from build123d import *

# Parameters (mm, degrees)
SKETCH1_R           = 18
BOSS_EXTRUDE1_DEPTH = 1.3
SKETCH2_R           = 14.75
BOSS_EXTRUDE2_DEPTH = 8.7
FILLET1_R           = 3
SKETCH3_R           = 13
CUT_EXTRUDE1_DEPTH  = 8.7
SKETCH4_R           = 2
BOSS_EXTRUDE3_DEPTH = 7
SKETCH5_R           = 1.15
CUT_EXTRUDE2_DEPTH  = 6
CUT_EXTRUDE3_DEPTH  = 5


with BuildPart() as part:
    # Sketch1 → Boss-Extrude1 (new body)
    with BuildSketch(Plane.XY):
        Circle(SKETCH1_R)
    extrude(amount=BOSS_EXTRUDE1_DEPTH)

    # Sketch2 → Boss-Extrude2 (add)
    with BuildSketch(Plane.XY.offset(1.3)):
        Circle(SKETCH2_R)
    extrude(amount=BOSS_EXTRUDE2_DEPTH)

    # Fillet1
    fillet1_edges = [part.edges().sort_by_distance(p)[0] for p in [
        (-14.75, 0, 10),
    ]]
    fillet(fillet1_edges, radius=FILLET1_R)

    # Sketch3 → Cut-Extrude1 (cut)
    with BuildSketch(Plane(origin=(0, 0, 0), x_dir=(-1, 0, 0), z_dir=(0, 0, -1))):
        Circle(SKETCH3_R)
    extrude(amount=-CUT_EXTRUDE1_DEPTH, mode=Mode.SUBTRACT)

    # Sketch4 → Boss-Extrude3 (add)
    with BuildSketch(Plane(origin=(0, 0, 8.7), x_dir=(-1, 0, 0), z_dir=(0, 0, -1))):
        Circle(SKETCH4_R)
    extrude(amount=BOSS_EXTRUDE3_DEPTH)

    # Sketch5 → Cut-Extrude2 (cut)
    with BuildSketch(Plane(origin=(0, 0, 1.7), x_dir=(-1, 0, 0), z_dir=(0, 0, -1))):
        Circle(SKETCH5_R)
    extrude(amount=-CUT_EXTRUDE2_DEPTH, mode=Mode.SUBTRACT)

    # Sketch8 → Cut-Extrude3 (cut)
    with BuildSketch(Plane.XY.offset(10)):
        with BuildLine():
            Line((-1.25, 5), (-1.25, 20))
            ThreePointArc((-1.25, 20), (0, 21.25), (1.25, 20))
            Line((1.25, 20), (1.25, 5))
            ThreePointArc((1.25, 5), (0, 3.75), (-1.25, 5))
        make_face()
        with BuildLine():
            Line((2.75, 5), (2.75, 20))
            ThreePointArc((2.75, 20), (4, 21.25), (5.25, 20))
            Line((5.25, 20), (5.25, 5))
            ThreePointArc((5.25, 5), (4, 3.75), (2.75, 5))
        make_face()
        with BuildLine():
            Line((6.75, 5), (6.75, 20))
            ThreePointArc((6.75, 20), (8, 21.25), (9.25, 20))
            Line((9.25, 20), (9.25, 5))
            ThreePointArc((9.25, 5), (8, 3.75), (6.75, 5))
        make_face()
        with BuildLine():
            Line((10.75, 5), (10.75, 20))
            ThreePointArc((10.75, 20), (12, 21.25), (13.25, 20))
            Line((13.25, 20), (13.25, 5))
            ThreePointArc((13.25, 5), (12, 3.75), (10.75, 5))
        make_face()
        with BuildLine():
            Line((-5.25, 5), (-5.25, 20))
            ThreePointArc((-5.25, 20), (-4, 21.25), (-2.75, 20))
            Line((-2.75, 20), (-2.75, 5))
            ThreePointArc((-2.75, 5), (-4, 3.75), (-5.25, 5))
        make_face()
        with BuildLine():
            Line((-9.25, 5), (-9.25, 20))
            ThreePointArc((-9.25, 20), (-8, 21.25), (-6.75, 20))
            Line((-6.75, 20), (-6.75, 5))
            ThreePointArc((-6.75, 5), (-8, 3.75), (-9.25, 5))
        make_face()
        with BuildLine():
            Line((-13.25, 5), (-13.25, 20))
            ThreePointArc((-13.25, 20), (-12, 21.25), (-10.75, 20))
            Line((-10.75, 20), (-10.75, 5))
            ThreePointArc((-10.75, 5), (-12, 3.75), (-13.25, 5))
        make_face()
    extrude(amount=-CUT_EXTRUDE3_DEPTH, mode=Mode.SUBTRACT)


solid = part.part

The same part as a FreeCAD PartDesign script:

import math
import FreeCAD as App
import Part
import Sketcher
from FreeCAD import Vector
Q = App.Units.Quantity


def edges_at(feature, points):
    """Names of the edges that pass closest to the given points."""
    edges = feature.Shape.Edges
    near = lambda p: min(range(len(edges)), key=lambda i: edges[i].distToShape(Part.Vertex(*p))[0])
    return sorted({f"Edge{near(p) + 1}" for p in points})

doc = App.newDocument("Part")
body = doc.addObject("PartDesign::Body", "Body")

sketch1 = body.newObject("Sketcher::SketchObject", "Sketch")
sketch1.AttachmentSupport = (doc.getObject("XY_Plane"), [""])
sketch1.MapMode = "FlatFace"
sketch1.addGeometry(Part.Circle(Vector(0, 0, 0), Vector(0, 0, 1), 18), False)
sketch1.addConstraint([
    Sketcher.Constraint("Coincident", 0, 3, -1, 1),
    Sketcher.Constraint("Diameter", 0, Q("36 mm")),
])
pad1 = body.newObject("PartDesign::Pad", "Pad")
pad1.Profile = sketch1
pad1.Length = 1.3

sketch2 = body.newObject("Sketcher::SketchObject", "Sketch001")
sketch2.AttachmentSupport = (doc.getObject("XY_Plane"), [""])
sketch2.MapMode = "FlatFace"
sketch2.AttachmentOffset = App.Placement(Vector(0, 0, 1.3), App.Rotation())
sketch2.addGeometry(Part.Circle(Vector(0, 0, 0), Vector(0, 0, 1), 14.75), False)
sketch2.addConstraint([
    Sketcher.Constraint("Coincident", 0, 3, -1, 1),
    Sketcher.Constraint("Diameter", 0, Q("29.5 mm")),
])
pad2 = body.newObject("PartDesign::Pad", "Pad001")
pad2.Profile = sketch2
pad2.Length = 8.7
doc.recompute()

fillet = body.newObject("PartDesign::Fillet", "Fillet")
fillet.Base = (pad2, edges_at(pad2, [(-14.75, 0, 10)]))
fillet.Radius = 3

sketch3 = body.newObject("Sketcher::SketchObject", "Sketch002")
sketch3.AttachmentSupport = (doc.getObject("XY_Plane"), [""])
sketch3.MapMode = "FlatFace"
sketch3.addGeometry(Part.Circle(Vector(0, 0, 0), Vector(0, 0, 1), 13), False)
sketch3.addConstraint([
    Sketcher.Constraint("Coincident", 0, 3, -1, 1),
    Sketcher.Constraint("Diameter", 0, Q("26 mm")),
])
pocket1 = body.newObject("PartDesign::Pocket", "Pocket")
pocket1.Profile = sketch3
pocket1.Length = 8.7
pocket1.Reversed = True

sketch4 = body.newObject("Sketcher::SketchObject", "Sketch003")
sketch4.AttachmentSupport = (doc.getObject("XY_Plane"), [""])
sketch4.MapMode = "FlatFace"
sketch4.AttachmentOffset = App.Placement(Vector(0, 0, 8.7), App.Rotation())
sketch4.addGeometry(Part.Circle(Vector(0, 0, 0), Vector(0, 0, 1), 2), False)
sketch4.addConstraint([
    Sketcher.Constraint("Coincident", 0, 3, -1, 1),
    Sketcher.Constraint("Diameter", 0, Q("4 mm")),
])
pad3 = body.newObject("PartDesign::Pad", "Pad002")
pad3.Profile = sketch4
pad3.Length = 7
pad3.Reversed = True

sketch5 = body.newObject("Sketcher::SketchObject", "Sketch004")
sketch5.AttachmentSupport = (doc.getObject("XY_Plane"), [""])
sketch5.MapMode = "FlatFace"
sketch5.AttachmentOffset = App.Placement(Vector(0, 0, 1.7), App.Rotation())
sketch5.addGeometry(Part.Circle(Vector(0, 0, 0), Vector(0, 0, 1), 1.15), False)
sketch5.addConstraint([
    Sketcher.Constraint("Coincident", 0, 3, -1, 1),
    Sketcher.Constraint("Diameter", 0, Q("2.3 mm")),
])
pocket2 = body.newObject("PartDesign::Pocket", "Pocket001")
pocket2.Profile = sketch5
pocket2.Length = 6
pocket2.Reversed = True

sketch6 = body.newObject("Sketcher::SketchObject", "Sketch005")
sketch6.AttachmentSupport = (doc.getObject("XY_Plane"), [""])
sketch6.MapMode = "FlatFace"
sketch6.AttachmentOffset = App.Placement(Vector(0, 0, 10), App.Rotation())
sketch6.addGeometry([
    Part.LineSegment(Vector(-1.25, 20, 0), Vector(-1.25, 5, 0)),
    Part.ArcOfCircle(Part.Circle(Vector(0, 5, 0), Vector(0, 0, 1), 1.25), math.radians(180), math.radians(360)),
    Part.LineSegment(Vector(1.25, 5, 0), Vector(1.25, 20, 0)),
    Part.ArcOfCircle(Part.Circle(Vector(0, 20, 0), Vector(0, 0, 1), 1.25), math.radians(0), math.radians(180)),
    Part.LineSegment(Vector(2.75, 20, 0), Vector(2.75, 5, 0)),
    Part.ArcOfCircle(Part.Circle(Vector(4, 5, 0), Vector(0, 0, 1), 1.25), math.radians(180), math.radians(360)),
    Part.LineSegment(Vector(5.25, 5, 0), Vector(5.25, 20, 0)),
    Part.ArcOfCircle(Part.Circle(Vector(4, 20, 0), Vector(0, 0, 1), 1.25), math.radians(0), math.radians(180)),
    Part.LineSegment(Vector(6.75, 20, 0), Vector(6.75, 5, 0)),
    Part.ArcOfCircle(Part.Circle(Vector(8, 5, 0), Vector(0, 0, 1), 1.25), math.radians(180), math.radians(360)),
    Part.LineSegment(Vector(9.25, 5, 0), Vector(9.25, 20, 0)),
    Part.ArcOfCircle(Part.Circle(Vector(8, 20, 0), Vector(0, 0, 1), 1.25), math.radians(0), math.radians(180)),
    Part.LineSegment(Vector(10.75, 20, 0), Vector(10.75, 5, 0)),
    Part.ArcOfCircle(Part.Circle(Vector(12, 5, 0), Vector(0, 0, 1), 1.25), math.radians(180), math.radians(360)),
    Part.LineSegment(Vector(13.25, 5, 0), Vector(13.25, 20, 0)),
    Part.ArcOfCircle(Part.Circle(Vector(12, 20, 0), Vector(0, 0, 1), 1.25), math.radians(0), math.radians(180)),
    Part.LineSegment(Vector(-5.25, 20, 0), Vector(-5.25, 5, 0)),
    Part.ArcOfCircle(Part.Circle(Vector(-4, 5, 0), Vector(0, 0, 1), 1.25), math.radians(180), math.radians(360)),
    Part.LineSegment(Vector(-2.75, 5, 0), Vector(-2.75, 20, 0)),
    Part.ArcOfCircle(Part.Circle(Vector(-4, 20, 0), Vector(0, 0, 1), 1.25), math.radians(0), math.radians(180)),
    Part.LineSegment(Vector(-9.25, 20, 0), Vector(-9.25, 5, 0)),
    Part.ArcOfCircle(Part.Circle(Vector(-8, 5, 0), Vector(0, 0, 1), 1.25), math.radians(180), math.radians(360)),
    Part.LineSegment(Vector(-6.75, 5, 0), Vector(-6.75, 20, 0)),
    Part.ArcOfCircle(Part.Circle(Vector(-8, 20, 0), Vector(0, 0, 1), 1.25), math.radians(0), math.radians(180)),
    Part.LineSegment(Vector(-13.25, 20, 0), Vector(-13.25, 5, 0)),
    Part.ArcOfCircle(Part.Circle(Vector(-12, 5, 0), Vector(0, 0, 1), 1.25), math.radians(180), math.radians(360)),
    Part.LineSegment(Vector(-10.75, 5, 0), Vector(-10.75, 20, 0)),
    Part.ArcOfCircle(Part.Circle(Vector(-12, 20, 0), Vector(0, 0, 1), 1.25), math.radians(0), math.radians(180)),
], False)
sketch6.addConstraint([
    Sketcher.Constraint("Tangent", 0, 2, 1, 1),
    Sketcher.Constraint("Tangent", 1, 2, 2, 1),
    Sketcher.Constraint("Tangent", 2, 2, 3, 1),
    Sketcher.Constraint("Tangent", 3, 2, 0, 1),
    Sketcher.Constraint("Tangent", 4, 2, 5, 1),
    Sketcher.Constraint("Tangent", 5, 2, 6, 1),
    Sketcher.Constraint("Tangent", 6, 2, 7, 1),
    Sketcher.Constraint("Tangent", 7, 2, 4, 1),
    Sketcher.Constraint("Tangent", 8, 2, 9, 1),
    Sketcher.Constraint("Tangent", 9, 2, 10, 1),
    Sketcher.Constraint("Tangent", 10, 2, 11, 1),
    Sketcher.Constraint("Tangent", 11, 2, 8, 1),
    Sketcher.Constraint("Tangent", 12, 2, 13, 1),
    Sketcher.Constraint("Tangent", 13, 2, 14, 1),
    Sketcher.Constraint("Tangent", 14, 2, 15, 1),
    Sketcher.Constraint("Tangent", 15, 2, 12, 1),
    Sketcher.Constraint("Tangent", 16, 2, 17, 1),
    Sketcher.Constraint("Tangent", 17, 2, 18, 1),
    Sketcher.Constraint("Tangent", 18, 2, 19, 1),
    Sketcher.Constraint("Tangent", 19, 2, 16, 1),
    Sketcher.Constraint("Tangent", 20, 2, 21, 1),
    Sketcher.Constraint("Tangent", 21, 2, 22, 1),
    Sketcher.Constraint("Tangent", 22, 2, 23, 1),
    Sketcher.Constraint("Tangent", 23, 2, 20, 1),
    Sketcher.Constraint("Tangent", 24, 2, 25, 1),
    Sketcher.Constraint("Tangent", 25, 2, 26, 1),
    Sketcher.Constraint("Tangent", 26, 2, 27, 1),
    Sketcher.Constraint("Tangent", 27, 2, 24, 1),
    Sketcher.Constraint("Vertical", 0),
    Sketcher.Constraint("Vertical", 2),
    Sketcher.Constraint("Vertical", 4),
    Sketcher.Constraint("Vertical", 6),
    Sketcher.Constraint("Vertical", 8),
    Sketcher.Constraint("Vertical", 10),
    Sketcher.Constraint("Vertical", 12),
    Sketcher.Constraint("Vertical", 14),
    Sketcher.Constraint("Vertical", 16),
    Sketcher.Constraint("Vertical", 18),
    Sketcher.Constraint("Vertical", 20),
    Sketcher.Constraint("Vertical", 22),
    Sketcher.Constraint("Vertical", 24),
    Sketcher.Constraint("Vertical", 26),
    Sketcher.Constraint("Equal", 3, 5),
    Sketcher.Constraint("Equal", 7, 9),
    Sketcher.Constraint("Equal", 11, 13),
    Sketcher.Constraint("Equal", 15, 17),
    Sketcher.Constraint("Equal", 19, 21),
    Sketcher.Constraint("Equal", 23, 25),
    Sketcher.Constraint("Symmetric", 5, 3, 17, 3, -2),
    Sketcher.Constraint("Symmetric", 9, 3, 21, 3, -2),
    Sketcher.Constraint("Symmetric", 13, 3, 25, 3, -2),
    Sketcher.Constraint("PointOnObject", 1, 3, -2),
    Sketcher.Constraint("Horizontal", 1, 3, 5, 3),
    Sketcher.Constraint("Horizontal", 3, 3, 7, 3),
    Sketcher.Constraint("Horizontal", 5, 3, 9, 3),
    Sketcher.Constraint("Horizontal", 7, 3, 11, 3),
    Sketcher.Constraint("Horizontal", 9, 3, 13, 3),
    Sketcher.Constraint("Horizontal", 11, 3, 15, 3),
    Sketcher.Constraint("Horizontal", 15, 3, 19, 3),
    Sketcher.Constraint("Horizontal", 19, 3, 23, 3),
    Sketcher.Constraint("Horizontal", 23, 3, 27, 3),
    Sketcher.Constraint("DistanceY", 0, 2, 0, 1, Q("15 mm")),
    Sketcher.Constraint("Radius", 1, Q("1.25 mm")),
    Sketcher.Constraint("DistanceY", -1, 1, 1, 3, Q("5 mm")),
    Sketcher.Constraint("DistanceX", -1, 1, 5, 3, Q("4 mm")),
    Sketcher.Constraint("DistanceX", -1, 1, 9, 3, Q("8 mm")),
    Sketcher.Constraint("DistanceX", -1, 1, 13, 3, Q("12 mm")),
])
pocket3 = body.newObject("PartDesign::Pocket", "Pocket002")
pocket3.Profile = sketch6
pocket3.Length = 5

doc.recompute()
